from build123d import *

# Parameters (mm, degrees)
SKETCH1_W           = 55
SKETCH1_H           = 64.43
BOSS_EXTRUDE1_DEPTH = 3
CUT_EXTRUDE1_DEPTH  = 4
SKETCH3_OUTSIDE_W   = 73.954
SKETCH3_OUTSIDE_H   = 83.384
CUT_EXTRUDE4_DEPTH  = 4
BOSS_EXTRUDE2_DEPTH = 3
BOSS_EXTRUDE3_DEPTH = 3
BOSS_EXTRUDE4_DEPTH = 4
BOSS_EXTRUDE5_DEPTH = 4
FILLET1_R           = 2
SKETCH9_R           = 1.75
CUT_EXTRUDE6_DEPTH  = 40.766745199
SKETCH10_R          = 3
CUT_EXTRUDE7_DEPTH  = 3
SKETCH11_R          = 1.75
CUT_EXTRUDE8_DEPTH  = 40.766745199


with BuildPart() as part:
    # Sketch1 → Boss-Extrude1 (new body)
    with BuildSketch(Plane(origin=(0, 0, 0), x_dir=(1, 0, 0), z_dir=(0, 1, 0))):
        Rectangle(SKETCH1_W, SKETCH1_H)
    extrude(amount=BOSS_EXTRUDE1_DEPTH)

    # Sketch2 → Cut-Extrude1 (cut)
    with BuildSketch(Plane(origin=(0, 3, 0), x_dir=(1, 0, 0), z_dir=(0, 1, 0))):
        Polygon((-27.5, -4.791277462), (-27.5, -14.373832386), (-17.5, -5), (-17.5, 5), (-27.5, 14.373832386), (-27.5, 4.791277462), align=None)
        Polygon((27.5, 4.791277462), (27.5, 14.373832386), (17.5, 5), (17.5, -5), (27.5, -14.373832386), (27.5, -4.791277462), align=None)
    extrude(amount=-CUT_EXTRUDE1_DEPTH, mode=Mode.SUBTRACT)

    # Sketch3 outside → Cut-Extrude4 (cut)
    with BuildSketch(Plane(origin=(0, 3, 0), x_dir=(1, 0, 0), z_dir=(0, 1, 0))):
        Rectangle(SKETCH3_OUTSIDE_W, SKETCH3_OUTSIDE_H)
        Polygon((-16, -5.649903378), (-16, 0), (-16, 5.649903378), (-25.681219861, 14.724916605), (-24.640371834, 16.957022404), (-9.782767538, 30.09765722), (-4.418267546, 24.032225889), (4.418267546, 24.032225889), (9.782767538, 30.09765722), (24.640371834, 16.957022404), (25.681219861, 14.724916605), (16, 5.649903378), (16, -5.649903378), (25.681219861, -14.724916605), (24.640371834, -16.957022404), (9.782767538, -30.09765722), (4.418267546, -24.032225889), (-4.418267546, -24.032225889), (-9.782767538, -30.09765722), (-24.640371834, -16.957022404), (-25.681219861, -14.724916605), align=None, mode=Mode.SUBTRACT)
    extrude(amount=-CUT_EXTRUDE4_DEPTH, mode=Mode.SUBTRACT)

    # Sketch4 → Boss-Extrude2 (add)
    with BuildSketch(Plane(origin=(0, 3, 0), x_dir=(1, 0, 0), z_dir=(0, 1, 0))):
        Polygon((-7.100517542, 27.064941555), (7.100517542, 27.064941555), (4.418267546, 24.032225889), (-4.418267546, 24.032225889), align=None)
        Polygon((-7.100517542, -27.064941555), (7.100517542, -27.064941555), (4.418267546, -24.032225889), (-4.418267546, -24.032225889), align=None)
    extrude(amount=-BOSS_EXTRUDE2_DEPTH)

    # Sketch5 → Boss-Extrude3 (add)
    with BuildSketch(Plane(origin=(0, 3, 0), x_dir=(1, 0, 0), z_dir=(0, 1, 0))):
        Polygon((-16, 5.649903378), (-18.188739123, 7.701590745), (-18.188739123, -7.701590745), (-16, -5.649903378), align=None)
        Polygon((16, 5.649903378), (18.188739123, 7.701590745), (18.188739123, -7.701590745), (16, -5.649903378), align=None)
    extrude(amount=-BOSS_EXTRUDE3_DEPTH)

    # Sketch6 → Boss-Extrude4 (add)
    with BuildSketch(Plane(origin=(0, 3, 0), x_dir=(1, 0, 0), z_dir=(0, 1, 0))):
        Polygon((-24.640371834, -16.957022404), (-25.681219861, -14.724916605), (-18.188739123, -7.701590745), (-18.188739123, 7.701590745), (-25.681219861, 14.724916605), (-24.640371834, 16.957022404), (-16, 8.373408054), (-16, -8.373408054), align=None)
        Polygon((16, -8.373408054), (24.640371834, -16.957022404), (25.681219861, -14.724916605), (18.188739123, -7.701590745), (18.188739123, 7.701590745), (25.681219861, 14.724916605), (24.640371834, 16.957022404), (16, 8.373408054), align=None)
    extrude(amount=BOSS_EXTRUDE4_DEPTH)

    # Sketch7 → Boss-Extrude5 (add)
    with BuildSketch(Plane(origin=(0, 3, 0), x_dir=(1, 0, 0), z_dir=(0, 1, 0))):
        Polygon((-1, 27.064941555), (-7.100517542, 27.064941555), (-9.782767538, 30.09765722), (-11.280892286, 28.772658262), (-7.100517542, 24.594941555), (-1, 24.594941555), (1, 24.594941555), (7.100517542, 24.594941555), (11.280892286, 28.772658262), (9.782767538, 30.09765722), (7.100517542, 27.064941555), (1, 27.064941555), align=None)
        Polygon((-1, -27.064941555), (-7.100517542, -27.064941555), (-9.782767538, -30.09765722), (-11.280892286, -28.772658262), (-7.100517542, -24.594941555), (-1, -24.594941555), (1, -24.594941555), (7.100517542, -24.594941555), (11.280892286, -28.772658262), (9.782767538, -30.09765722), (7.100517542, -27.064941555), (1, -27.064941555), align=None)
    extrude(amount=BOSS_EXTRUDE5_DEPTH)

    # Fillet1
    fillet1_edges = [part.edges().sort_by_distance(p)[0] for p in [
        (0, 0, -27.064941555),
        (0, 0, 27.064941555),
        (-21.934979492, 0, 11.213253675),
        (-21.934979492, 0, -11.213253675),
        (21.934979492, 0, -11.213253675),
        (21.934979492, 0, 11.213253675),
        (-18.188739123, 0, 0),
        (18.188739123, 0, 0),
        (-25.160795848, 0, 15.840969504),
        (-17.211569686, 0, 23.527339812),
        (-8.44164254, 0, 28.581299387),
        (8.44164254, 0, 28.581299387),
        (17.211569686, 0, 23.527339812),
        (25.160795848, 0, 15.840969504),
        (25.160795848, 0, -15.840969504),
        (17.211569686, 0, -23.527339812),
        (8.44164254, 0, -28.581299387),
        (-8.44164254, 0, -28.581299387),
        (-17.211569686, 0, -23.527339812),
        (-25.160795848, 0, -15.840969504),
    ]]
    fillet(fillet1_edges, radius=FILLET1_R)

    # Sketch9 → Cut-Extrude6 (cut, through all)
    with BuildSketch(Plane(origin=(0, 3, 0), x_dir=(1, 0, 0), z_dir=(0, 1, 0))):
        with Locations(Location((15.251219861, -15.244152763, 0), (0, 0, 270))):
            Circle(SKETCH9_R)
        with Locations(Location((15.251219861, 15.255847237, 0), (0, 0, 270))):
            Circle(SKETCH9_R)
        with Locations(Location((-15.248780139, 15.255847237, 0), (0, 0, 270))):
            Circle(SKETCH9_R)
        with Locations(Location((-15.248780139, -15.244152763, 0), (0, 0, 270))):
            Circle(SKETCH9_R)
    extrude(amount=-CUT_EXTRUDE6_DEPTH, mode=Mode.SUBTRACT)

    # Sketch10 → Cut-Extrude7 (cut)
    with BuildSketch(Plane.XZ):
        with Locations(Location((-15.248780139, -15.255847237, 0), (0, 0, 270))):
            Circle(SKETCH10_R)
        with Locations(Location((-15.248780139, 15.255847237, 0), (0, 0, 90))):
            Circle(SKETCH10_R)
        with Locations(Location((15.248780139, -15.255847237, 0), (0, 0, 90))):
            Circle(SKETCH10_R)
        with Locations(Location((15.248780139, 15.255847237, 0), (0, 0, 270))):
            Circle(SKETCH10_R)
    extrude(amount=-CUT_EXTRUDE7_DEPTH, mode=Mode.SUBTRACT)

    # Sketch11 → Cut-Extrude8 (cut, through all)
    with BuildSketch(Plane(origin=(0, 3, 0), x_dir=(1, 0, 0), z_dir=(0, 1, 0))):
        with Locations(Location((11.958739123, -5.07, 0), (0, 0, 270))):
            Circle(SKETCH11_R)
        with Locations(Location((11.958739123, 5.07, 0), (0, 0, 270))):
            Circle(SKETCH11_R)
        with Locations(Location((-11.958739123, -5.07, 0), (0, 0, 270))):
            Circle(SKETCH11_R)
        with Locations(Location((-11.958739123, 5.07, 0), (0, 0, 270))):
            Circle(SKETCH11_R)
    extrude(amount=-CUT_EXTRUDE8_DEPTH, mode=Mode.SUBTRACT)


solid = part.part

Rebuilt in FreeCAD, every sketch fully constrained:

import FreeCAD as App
import Part
import Sketcher

V = App.Vector
Q = App.Units.Quantity


def edges_at(feature, points):
    """Names of the edges that pass closest to the given points."""
    edges = feature.Shape.Edges
    near = lambda p: min(range(len(edges)), key=lambda i: edges[i].distToShape(Part.Vertex(*p))[0])
    return sorted({f"Edge{near(p) + 1}" for p in points})

doc = App.newDocument("Part")
body = doc.addObject("PartDesign::Body", "Body")

sketch1 = body.newObject("Sketcher::SketchObject", "Sketch")
sketch1.AttachmentSupport = (doc.getObject("XZ_Plane"), [""])
sketch1.MapMode = "FlatFace"
sketch1.addGeometry(Part.LineSegment(V(-27.5, -32.215, 0), V(-27.5, 32.215, 0)), False)
sketch1.addGeometry(Part.LineSegment(V(-27.5, 32.215, 0), V(27.5, 32.215, 0)), False)
sketch1.addGeometry(Part.LineSegment(V(27.5, 32.215, 0), V(27.5, -32.215, 0)), False)
sketch1.addGeometry(Part.LineSegment(V(27.5, -32.215, 0), V(-27.5, -32.215, 0)), False)
sketch1.addConstraint(Sketcher.Constraint("Coincident", 0, 2, 1, 1))
sketch1.addConstraint(Sketcher.Constraint("Coincident", 1, 2, 2, 1))
sketch1.addConstraint(Sketcher.Constraint("Coincident", 2, 2, 3, 1))
sketch1.addConstraint(Sketcher.Constraint("Coincident", 3, 2, 0, 1))
sketch1.addConstraint(Sketcher.Constraint("Vertical", 0))
sketch1.addConstraint(Sketcher.Constraint("Horizontal", 1))
sketch1.addConstraint(Sketcher.Constraint("Vertical", 2))
sketch1.addConstraint(Sketcher.Constraint("Horizontal", 3))
sketch1.addConstraint(Sketcher.Constraint("Symmetric", 0, 2, 2, 2, -1, 1))
sketch1.addConstraint(Sketcher.Constraint("DistanceX", 1, 1, 1, 2, Q("55 mm")))
sketch1.addConstraint(Sketcher.Constraint("DistanceY", 0, 1, 0, 2, Q("64.43 mm")))
pad1 = body.newObject("PartDesign::Pad", "Pad")
pad1.Profile = sketch1
pad1.Length = 3
pad1.Reversed = True

sketch2 = body.newObject("Sketcher::SketchObject", "Sketch001")
sketch2.AttachmentSupport = (doc.getObject("XZ_Plane"), [""])
sketch2.MapMode = "FlatFace"
sketch2.AttachmentOffset = App.Placement(V(0, 0, -3), App.Rotation())
sketch2.addGeometry(Part.LineSegment(V(-27.5, 14.373832, 0), V(-17.5, 5, 0)), False)
sketch2.addGeometry(Part.LineSegment(V(-17.5, 5, 0), V(-17.5, -5, 0)), False)
sketch2.addGeometry(Part.LineSegment(V(-17.5, -5, 0), V(-27.5, -14.373832, 0)), False)
sketch2.addGeometry(Part.LineSegment(V(-27.5, -14.373832, 0), V(-27.5, 14.373832, 0)), False)
sketch2.addGeometry(Part.LineSegment(V(27.5, -14.373832, 0), V(17.5, -5, 0)), False)
sketch2.addGeometry(Part.LineSegment(V(17.5, -5, 0), V(17.5, 5, 0)), False)
sketch2.addGeometry(Part.LineSegment(V(17.5, 5, 0), V(27.5, 14.373832, 0)), False)
sketch2.addGeometry(Part.LineSegment(V(27.5, 14.373832, 0), V(27.5, -14.373832, 0)), False)
sketch2.addConstraint(Sketcher.Constraint("Coincident", 0, 2, 1, 1))
sketch2.addConstraint(Sketcher.Constraint("Coincident", 1, 2, 2, 1))
sketch2.addConstraint(Sketcher.Constraint("Coincident", 2, 2, 3, 1))
sketch2.addConstraint(Sketcher.Constraint("Coincident", 3, 2, 0, 1))
sketch2.addConstraint(Sketcher.Constraint("Coincident", 4, 2, 5, 1))
sketch2.addConstraint(Sketcher.Constraint("Coincident", 5, 2, 6, 1))
sketch2.addConstraint(Sketcher.Constraint("Coincident", 6, 2, 7, 1))
sketch2.addConstraint(Sketcher.Constraint("Coincident", 7, 2, 4, 1))
sketch2.addConstraint(Sketcher.Constraint("Vertical", 1))
sketch2.addConstraint(Sketcher.Constraint("Vertical", 3))
sketch2.addConstraint(Sketcher.Constraint("Vertical", 5))
sketch2.addConstraint(Sketcher.Constraint("Vertical", 7))
sketch2.addConstraint(Sketcher.Constraint("Symmetric", 0, 2, 4, 2, -1, 1))
sketch2.addConstraint(Sketcher.Constraint("Symmetric", 2, 2, 6, 2, -1, 1))
sketch2.addConstraint(Sketcher.Constraint("Parallel", 0, 4))
sketch2.addConstraint(Sketcher.Constraint("Parallel", 2, 6))
sketch2.addConstraint(Sketcher.Constraint("Horizontal", 1, 2, 4, 2))
sketch2.addConstraint(Sketcher.Constraint("Horizontal", 3, 2, 6, 2))
sketch2.addConstraint(Sketcher.Constraint("DistanceY", 1, 2, 1, 1, Q("10 mm")))
sketch2.addConstraint(Sketcher.Constraint("DistanceX", 2, 2, 1, 2, Q("10 mm")))
sketch2.addConstraint(Sketcher.Constraint("DistanceX", 1, 2, 4, 2, Q("35 mm")))
sketch2.addConstraint(Sketcher.Constraint("Distance", 0, Q("13.706522 mm")))
pocket1 = body.newObject("PartDesign::Pocket", "Pocket")
pocket1.Profile = sketch2
pocket1.Length = 4
pocket1.Reversed = True

sketch3 = body.newObject("Sketcher::SketchObject", "Sketch002")
sketch3.AttachmentSupport = (doc.getObject("XZ_Plane"), [""])
sketch3.MapMode = "FlatFace"
sketch3.AttachmentOffset = App.Placement(V(0, 0, -3), App.Rotation())
sketch3.addGeometry(Part.LineSegment(V(-36.977, -41.692, 0), V(-36.977, 41.692, 0)), False)
sketch3.addGeometry(Part.LineSegment(V(-36.977, 41.692, 0), V(36.977, 41.692, 0)), False)
sketch3.addGeometry(Part.LineSegment(V(36.977, 41.692, 0), V(36.977, -41.692, 0)), False)
sketch3.addGeometry(Part.LineSegment(V(36.977, -41.692, 0), V(-36.977, -41.692, 0)), False)
sketch3.addGeometry(Part.LineSegment(V(-25.68122, 14.724917, 0), V(-16, 5.649903, 0)), False)
sketch3.addGeometry(Part.LineSegment(V(-16, 5.649903, 0), V(-16, -5.649903, 0)), False)
sketch3.addGeometry(Part.LineSegment(V(-16, -5.649903, 0), V(-25.68122, -14.724917, 0)), False)
sketch3.addGeometry(Part.LineSegment(V(-25.68122, -14.724917, 0), V(-24.640372, -16.957022, 0)), False)
sketch3.addGeometry(Part.LineSegment(V(-24.640372, -16.957022, 0), V(-9.782768, -30.097657, 0)), False)
sketch3.addGeometry(Part.LineSegment(V(-9.782768, -30.097657, 0), V(-4.418268, -24.032226, 0)), False)
sketch3.addGeometry(Part.LineSegment(V(-4.418268, -24.032226, 0), V(4.418268, -24.032226, 0)), False)
sketch3.addGeometry(Part.LineSegment(V(4.418268, -24.032226, 0), V(9.782768, -30.097657, 0)), False)
sketch3.addGeometry(Part.LineSegment(V(9.782768, -30.097657, 0), V(24.640372, -16.957022, 0)), False)
sketch3.addGeometry(Part.LineSegment(V(24.640372, -16.957022, 0), V(25.68122, -14.724917, 0)), False)
sketch3.addGeometry(Part.LineSegment(V(25.68122, -14.724917, 0), V(16, -5.649903, 0)), False)
sketch3.addGeometry(Part.LineSegment(V(16, -5.649903, 0), V(16, 5.649903, 0)), False)
sketch3.addGeometry(Part.LineSegment(V(16, 5.649903, 0), V(25.68122, 14.724917, 0)), False)
sketch3.addGeometry(Part.LineSegment(V(25.68122, 14.724917, 0), V(24.640372, 16.957022, 0)), False)
sketch3.addGeometry(Part.LineSegment(V(24.640372, 16.957022, 0), V(9.782768, 30.097657, 0)), False)
sketch3.addGeometry(Part.LineSegment(V(9.782768, 30.097657, 0), V(4.418268, 24.032226, 0)), False)
sketch3.addGeometry(Part.LineSegment(V(4.418268, 24.032226, 0), V(-4.418268, 24.032226, 0)), False)
sketch3.addGeometry(Part.LineSegment(V(-4.418268, 24.032226, 0), V(-9.782768, 30.097657, 0)), False)
sketch3.addGeometry(Part.LineSegment(V(-9.782768, 30.097657, 0), V(-24.640372, 16.957022, 0)), False)
sketch3.addGeometry(Part.LineSegment(V(-24.640372, 16.957022, 0), V(-25.68122, 14.724917, 0)), False)
sketch3.addConstraint(Sketcher.Constraint("Coincident", 0, 2, 1, 1))
sketch3.addConstraint(Sketcher.Constraint("Coincident", 1, 2, 2, 1))
sketch3.addConstraint(Sketcher.Constraint("Coincident", 2, 2, 3, 1))
sketch3.addConstraint(Sketcher.Constraint("Coincident", 3, 2, 0, 1))
sketch3.addConstraint(Sketcher.Constraint("Coincident", 4, 2, 5, 1))
sketch3.addConstraint(Sketcher.Constraint("Coincident", 5, 2, 6, 1))
sketch3.addConstraint(Sketcher.Constraint("Coincident", 6, 2, 7, 1))
sketch3.addConstraint(Sketcher.Constraint("Coincident", 7, 2, 8, 1))
sketch3.addConstraint(Sketcher.Constraint("Coincident", 8, 2, 9, 1))
sketch3.addConstraint(Sketcher.Constraint("Coincident", 9, 2, 10, 1))
sketch3.addConstraint(Sketcher.Constraint("Coincident", 10, 2, 11, 1))
sketch3.addConstraint(Sketcher.Constraint("Coincident", 11, 2, 12, 1))
sketch3.addConstraint(Sketcher.Constraint("Coincident", 12, 2, 13, 1))
sketch3.addConstraint(Sketcher.Constraint("Coincident", 13, 2, 14, 1))
sketch3.addConstraint(Sketcher.Constraint("Coincident", 14, 2, 15, 1))
sketch3.addConstraint(Sketcher.Constraint("Coincident", 15, 2, 16, 1))
sketch3.addConstraint(Sketcher.Constraint("Coincident", 16, 2, 17, 1))
sketch3.addConstraint(Sketcher.Constraint("Coincident", 17, 2, 18, 1))
sketch3.addConstraint(Sketcher.Constraint("Coincident", 18, 2, 19, 1))
sketch3.addConstraint(Sketcher.Constraint("Coincident", 19, 2, 20, 1))
sketch3.addConstraint(Sketcher.Constraint("Coincident", 20, 2, 21, 1))
sketch3.addConstraint(Sketcher.Constraint("Coincident", 21, 2, 22, 1))
sketch3.addConstraint(Sketcher.Constraint("Coincident", 22, 2, 23, 1))
sketch3.addConstraint(Sketcher.Constraint("Coincident", 23, 2, 4, 1))
sketch3.addConstraint(Sketcher.Constraint("Vertical", 0))
sketch3.addConstraint(Sketcher.Constraint("Horizontal", 1))
sketch3.addConstraint(Sketcher.Constraint("Vertical", 2))
sketch3.addConstraint(Sketcher.Constraint("Horizontal", 3))
sketch3.addConstraint(Sketcher.Constraint("Vertical", 5))
sketch3.addConstraint(Sketcher.Constraint("Horizontal", 10))
sketch3.addConstraint(Sketcher.Constraint("Vertical", 15))
sketch3.addConstraint(Sketcher.Constraint("Horizontal", 20))
sketch3.addConstraint(Sketcher.Constraint("Symmetric", 0, 2, 2, 2, -1, 1))
sketch3.addConstraint(Sketcher.Constraint("Symmetric", 4, 2, 14, 2, -1, 1))
sketch3.addConstraint(Sketcher.Constraint("Symmetric", 6, 2, 16, 2, -1, 1))
sketch3.addConstraint(Sketcher.Constraint("Symmetric", 7, 2, 17, 2, -1, 1))
sketch3.addConstraint(Sketcher.Constraint("Symmetric", 8, 2, 18, 2, -1, 1))
sketch3.addConstraint(Sketcher.Constraint("Symmetric", 9, 2, 19, 2, -1, 1))
sketch3.addConstraint(Sketcher.Constraint("Symmetric", 11, 2, 21, 2, -1, 1))
sketch3.addConstraint(Sketcher.Constraint("Symmetric", 12, 2, 22, 2, -1, 1))
sketch3.addConstraint(Sketcher.Constraint("Symmetric", 13, 2, 23, 2, -1, 1))
sketch3.addConstraint(Sketcher.Constraint("Symmetric", 8, 2, 11, 2, -2))
sketch3.addConstraint(Sketcher.Constraint("Symmetric", 7, 2, 12, 2, -2))
sketch3.addConstraint(Sketcher.Constraint("Symmetric", 6, 2, 13, 2, -2))
sketch3.addConstraint(Sketcher.Constraint("Perpendicular", 8, 9))
sketch3.addConstraint(Sketcher.Constraint("Perpendicular", 11, 12))
sketch3.addConstraint(Sketcher.Constraint("Parallel", 6, 16))
sketch3.addConstraint(Sketcher.Constraint("Perpendicular", 12, 21))
sketch3.addConstraint(Sketcher.Constraint("Horizontal", 5, 2, 14, 2))
sketch3.addConstraint(Sketcher.Constraint("Angle", 7, Q("-65 deg")))
sketch3.addConstraint(Sketcher.Constraint("DistanceX", 4, 2, -1, 1, Q("16 mm")))
sketch3.addConstraint(Sketcher.Constraint("DistanceX", 1, 1, 1, 2, Q("73.954 mm")))
sketch3.addConstraint(Sketcher.Constraint("DistanceY", 0, 1, 0, 2, Q("83.384 mm")))
sketch3.addConstraint(Sketcher.Constraint("DistanceX", 8, 2, 9, 2, Q("5.3645 mm")))
sketch3.addConstraint(Sketcher.Constraint("DistanceX", 10, 1, 10, 2, Q("8.836535 mm")))
sketch3.addConstraint(Sketcher.Constraint("DistanceY", 5, 2, 5, 1, Q("11.299807 mm")))
sketch3.addConstraint(Sketcher.Constraint("DistanceX", 6, 2, -1, 1, Q("25.68122 mm")))
sketch3.addConstraint(Sketcher.Constraint("DistanceX", 7, 2, -1, 1, Q("24.640372 mm")))
sketch3.addConstraint(Sketcher.Constraint("DistanceY", 6, 2, 4, 2, Q("20.37482 mm")))
sketch3.addConstraint(Sketcher.Constraint("DistanceY", 8, 2, 6, 2, Q("15.372741 mm")))
pocket2 = body.newObject("PartDesign::Pocket", "Pocket001")
pocket2.Profile = sketch3
pocket2.Length = 4
pocket2.Reversed = True

sketch4 = body.newObject("Sketcher::SketchObject", "Sketch003")
sketch4.AttachmentSupport = (doc.getObject("XZ_Plane"), [""])
sketch4.MapMode = "FlatFace"
sketch4.AttachmentOffset = App.Placement(V(0, 0, -3), App.Rotation())
sketch4.addGeometry(Part.LineSegment(V(7.100518, -27.064942, 0), V(-7.100518, -27.064942, 0)), False)
sketch4.addGeometry(Part.LineSegment(V(-7.100518, -27.064942, 0), V(-4.418268, -24.032226, 0)), False)
sketch4.addGeometry(Part.LineSegment(V(-4.418268, -24.032226, 0), V(4.418268, -24.032226, 0)), False)
sketch4.addGeometry(Part.LineSegment(V(4.418268, -24.032226, 0), V(7.100518, -27.064942, 0)), False)
sketch4.addGeometry(Part.LineSegment(V(-7.100518, 27.064942, 0), V(7.100518, 27.064942, 0)), False)
sketch4.addGeometry(Part.LineSegment(V(7.100518, 27.064942, 0), V(4.418268, 24.032226, 0)), False)
sketch4.addGeometry(Part.LineSegment(V(4.418268, 24.032226, 0), V(-4.418268, 24.032226, 0)), False)
sketch4.addGeometry(Part.LineSegment(V(-4.418268, 24.032226, 0), V(-7.100518, 27.064942, 0)), False)
sketch4.addConstraint(Sketcher.Constraint("Coincident", 0, 2, 1, 1))
sketch4.addConstraint(Sketcher.Constraint("Coincident", 1, 2, 2, 1))
sketch4.addConstraint(Sketcher.Constraint("Coincident", 2, 2, 3, 1))
sketch4.addConstraint(Sketcher.Constraint("Coincident", 3, 2, 0, 1))
sketch4.addConstraint(Sketcher.Constraint("Coincident", 4, 2, 5, 1))
sketch4.addConstraint(Sketcher.Constraint("Coincident", 5, 2, 6, 1))
sketch4.addConstraint(Sketcher.Constraint("Coincident", 6, 2, 7, 1))
sketch4.addConstraint(Sketcher.Constraint("Coincident", 7, 2, 4, 1))
sketch4.addConstraint(Sketcher.Constraint("Horizontal", 0))
sketch4.addConstraint(Sketcher.Constraint("Horizontal", 2))
sketch4.addConstraint(Sketcher.Constraint("Horizontal", 4))
sketch4.addConstraint(Sketcher.Constraint("Horizontal", 6))
sketch4.addConstraint(Sketcher.Constraint("Symmetric", 0, 2, 4, 2, -1, 1))
sketch4.addConstraint(Sketcher.Constraint("Symmetric", 1, 2, 5, 2, -1, 1))
sketch4.addConstraint(Sketcher.Constraint("Parallel", 3, 7))
sketch4.addConstraint(Sketcher.Constraint("Vertical", 3, 2, 4, 2))
sketch4.addConstraint(Sketcher.Constraint("Vertical", 2, 2, 5, 2))
sketch4.addConstraint(Sketcher.Constraint("Vertical", 1, 2, 6, 2))
sketch4.addConstraint(Sketcher.Constraint("DistanceX", 0, 2, 0, 1, Q("14.201035 mm")))
sketch4.addConstraint(Sketcher.Constraint("DistanceX", 2, 1, 2, 2, Q("8.836535 mm")))
sketch4.addConstraint(Sketcher.Constraint("DistanceY", 0, 2, -1, 1, Q("27.064942 mm")))
sketch4.addConstraint(Sketcher.Constraint("DistanceY", 2, 2, 5, 2, Q("48.064452 mm")))
pad2 = body.newObject("PartDesign::Pad", "Pad001")
pad2.Profile = sketch4
pad2.Length = 3

sketch5 = body.newObject("Sketcher::SketchObject", "Sketch004")
sketch5.AttachmentSupport = (doc.getObject("XZ_Plane"), [""])
sketch5.MapMode = "FlatFace"
sketch5.AttachmentOffset = App.Placement(V(0, 0, -3), App.Rotation())
sketch5.addGeometry(Part.LineSegment(V(-16, -5.649903, 0), V(-18.188739, -7.701591, 0)), False)
sketch5.addGeometry(Part.LineSegment(V(-18.188739, -7.701591, 0), V(-18.188739, 7.701591, 0)), False)
sketch5.addGeometry(Part.LineSegment(V(-18.188739, 7.701591, 0), V(-16, 5.649903, 0)), False)
sketch5.addGeometry(Part.LineSegment(V(-16, 5.649903, 0), V(-16, -5.649903, 0)), False)
sketch5.addGeometry(Part.LineSegment(V(18.188739, -7.701591, 0), V(16, -5.649903, 0)), False)
sketch5.addGeometry(Part.LineSegment(V(16, -5.649903, 0), V(16, 5.649903, 0)), False)
sketch5.addGeometry(Part.LineSegment(V(16, 5.649903, 0), V(18.188739, 7.701591, 0)), False)
sketch5.addGeometry(Part.LineSegment(V(18.188739, 7.701591, 0), V(18.188739, -7.701591, 0)), False)
sketch5.addConstraint(Sketcher.Constraint("Coincident", 0, 2, 1, 1))
sketch5.addConstraint(Sketcher.Constraint("Coincident", 1, 2, 2, 1))
sketch5.addConstraint(Sketcher.Constraint("Coincident", 2, 2, 3, 1))
sketch5.addConstraint(Sketcher.Constraint("Coincident", 3, 2, 0, 1))
sketch5.addConstraint(Sketcher.Constraint("Coincident", 4, 2, 5, 1))
sketch5.addConstraint(Sketcher.Constraint("Coincident", 5, 2, 6, 1))
sketch5.addConstraint(Sketcher.Constraint("Coincident", 6, 2, 7, 1))
sketch5.addConstraint(Sketcher.Constraint("Coincident", 7, 2, 4, 1))
sketch5.addConstraint(Sketcher.Constraint("Vertical", 1))
sketch5.addConstraint(Sketcher.Constraint("Vertical", 3))
sketch5.addConstraint(Sketcher.Constraint("Vertical", 5))
sketch5.addConstraint(Sketcher.Constraint("Vertical", 7))
sketch5.addConstraint(Sketcher.Constraint("Symmetric", 2, 2, 4, 2, -1, 1))
sketch5.addConstraint(Sketcher.Constraint("Symmetric", 0, 2, 6, 2, -1, 1))
sketch5.addConstraint(Sketcher.Constraint("Parallel", 2, 4))
sketch5.addConstraint(Sketcher.Constraint("Parallel", 0, 6))
sketch5.addConstraint(Sketcher.Constraint("Horizontal", 3, 2, 4, 2))
sketch5.addConstraint(Sketcher.Constraint("Horizontal", 1, 2, 6, 2))
sketch5.addConstraint(Sketcher.Constraint("Distance", 0, Q("3 mm")))
sketch5.addConstraint(Sketcher.Constraint("DistanceX", 2, 2, -1, 1, Q("16 mm")))
sketch5.addConstraint(Sketcher.Constraint("DistanceY", 1, 1, 1, 2, Q("15.403181 mm")))
sketch5.addConstraint(Sketcher.Constraint("DistanceY", 3, 2, 3, 1, Q("11.299807 mm")))
pad3 = body.newObject("PartDesign::Pad", "Pad002")
pad3.Profile = sketch5
pad3.Length = 3

sketch6 = body.newObject("Sketcher::SketchObject", "Sketch005")
sketch6.AttachmentSupport = (doc.getObject("XZ_Plane"), [""])
sketch6.MapMode = "FlatFace"
sketch6.AttachmentOffset = App.Placement(V(0, 0, -3), App.Rotation())
sketch6.addGeometry(Part.LineSegment(V(-25.68122, 14.724917, 0), V(-24.640372, 16.957022, 0)), False)
sketch6.addGeometry(Part.LineSegment(V(-24.640372, 16.957022, 0), V(-16, 8.373408, 0)), False)
sketch6.addGeometry(Part.LineSegment(V(-16, 8.373408, 0), V(-16, -8.373408, 0)), False)
sketch6.addGeometry(Part.LineSegment(V(-16, -8.373408, 0), V(-24.640372, -16.957022, 0)), False)
sketch6.addGeometry(Part.LineSegment(V(-24.640372, -16.957022, 0), V(-25.68122, -14.724917, 0)), False)
sketch6.addGeometry(Part.LineSegment(V(-25.68122, -14.724917, 0), V(-18.188739, -7.701591, 0)), False)
sketch6.addGeometry(Part.LineSegment(V(-18.188739, -7.701591, 0), V(-18.188739, 7.701591, 0)), False)
sketch6.addGeometry(Part.LineSegment(V(-18.188739, 7.701591, 0), V(-25.68122, 14.724917, 0)), False)
sketch6.addGeometry(Part.LineSegment(V(16, 8.373408, 0), V(24.640372, 16.957022, 0)), False)
sketch6.addGeometry(Part.LineSegment(V(24.640372, 16.957022, 0), V(25.68122, 14.724917, 0)), False)
sketch6.addGeometry(Part.LineSegment(V(25.68122, 14.724917, 0), V(18.188739, 7.701591, 0)), False)
sketch6.addGeometry(Part.LineSegment(V(18.188739, 7.701591, 0), V(18.188739, -7.701591, 0)), False)
sketch6.addGeometry(Part.LineSegment(V(18.188739, -7.701591, 0), V(25.68122, -14.724917, 0)), False)
sketch6.addGeometry(Part.LineSegment(V(25.68122, -14.724917, 0), V(24.640372, -16.957022, 0)), False)
sketch6.addGeometry(Part.LineSegment(V(24.640372, -16.957022, 0), V(16, -8.373408, 0)), False)
sketch6.addGeometry(Part.LineSegment(V(16, -8.373408, 0), V(16, 8.373408, 0)), False)
sketch6.addConstraint(Sketcher.Constraint("Coincident", 0, 2, 1, 1))
sketch6.addConstraint(Sketcher.Constraint("Coincident", 1, 2, 2, 1))
sketch6.addConstraint(Sketcher.Constraint("Coincident", 2, 2, 3, 1))
sketch6.addConstraint(Sketcher.Constraint("Coincident", 3, 2, 4, 1))
sketch6.addConstraint(Sketcher.Constraint("Coincident", 4, 2, 5, 1))
sketch6.addConstraint(Sketcher.Constraint("Coincident", 5, 2, 6, 1))
sketch6.addConstraint(Sketcher.Constraint("Coincident", 6, 2, 7, 1))
sketch6.addConstraint(Sketcher.Constraint("Coincident", 7, 2, 0, 1))
sketch6.addConstraint(Sketcher.Constraint("Coincident", 8, 2, 9, 1))
sketch6.addConstraint(Sketcher.Constraint("Coincident", 9, 2, 10, 1))
sketch6.addConstraint(Sketcher.Constraint("Coincident", 10, 2, 11, 1))
sketch6.addConstraint(Sketcher.Constraint("Coincident", 11, 2, 12, 1))
sketch6.addConstraint(Sketcher.Constraint("Coincident", 12, 2, 13, 1))
sketch6.addConstraint(Sketcher.Constraint("Coincident", 13, 2, 14, 1))
sketch6.addConstraint(Sketcher.Constraint("Coincident", 14, 2, 15, 1))
sketch6.addConstraint(Sketcher.Constraint("Coincident", 15, 2, 8, 1))
sketch6.addConstraint(Sketcher.Constraint("Vertical", 2))
sketch6.addConstraint(Sketcher.Constraint("Vertical", 6))
sketch6.addConstraint(Sketcher.Constraint("Vertical", 11))
sketch6.addConstraint(Sketcher.Constraint("Vertical", 15))
sketch6.addConstraint(Sketcher.Constraint("Symmetric", 3, 2, 8, 2, -1, 1))
sketch6.addConstraint(Sketcher.Constraint("Symmetric", 4, 2, 9, 2, -1, 1))
sketch6.addConstraint(Sketcher.Constraint("Symmetric", 5, 2, 10, 2, -1, 1))
sketch6.addConstraint(Sketcher.Constraint("Symmetric", 7, 2, 12, 2, -1, 1))
sketch6.addConstraint(Sketcher.Constraint("Symmetric", 0, 2, 13, 2, -1, 1))
sketch6.addConstraint(Sketcher.Constraint("Symmetric", 1, 2, 14, 2, -1, 1))
sketch6.addConstraint(Sketcher.Constraint("Symmetric", 0, 2, 8, 2, -2))
sketch6.addConstraint(Sketcher.Constraint("Symmetric", 7, 2, 9, 2, -2))
sketch6.addConstraint(Sketcher.Constraint("Parallel", 3, 8))
sketch6.addConstraint(Sketcher.Constraint("Parallel", 7, 12))
sketch6.addConstraint(Sketcher.Constraint("Horizontal", 6, 2, 10, 2))
sketch6.addConstraint(Sketcher.Constraint("Horizontal", 2, 2, 14, 2))
sketch6.addConstraint(Sketcher.Constraint("Angle", 0, Q("65 deg")))
sketch6.addConstraint(Sketcher.Constraint("DistanceX", 1, 2, -1, 1, Q("16 mm")))
sketch6.addConstraint(Sketcher.Constraint("DistanceY", 5, 2, 1, 2, Q("16.074999 mm")))
sketch6.addConstraint(Sketcher.Constraint("DistanceY", 6, 1, 6, 2, Q("15.403181 mm")))
sketch6.addConstraint(Sketcher.Constraint("DistanceX", 0, 2, -1, 1, Q("24.640372 mm")))
sketch6.addConstraint(Sketcher.Constraint("DistanceX", 4, 2, -1, 1, Q("25.68122 mm")))
sketch6.addConstraint(Sketcher.Constraint("DistanceX", 5, 2, -1, 1, Q("18.188739 mm")))
sketch6.addConstraint(Sketcher.Constraint("DistanceY", 2, 2, 0, 2, Q("25.33043 mm")))
pad4 = body.newObject("PartDesign::Pad", "Pad003")
pad4.Profile = sketch6
pad4.Length = 4
pad4.Reversed = True

sketch7 = body.newObject("Sketcher::SketchObject", "Sketch006")
sketch7.AttachmentSupport = (doc.getObject("XZ_Plane"), [""])
sketch7.MapMode = "FlatFace"
sketch7.AttachmentOffset = App.Placement(V(0, 0, -3), App.Rotation())
sketch7.addGeometry(Part.LineSegment(V(-7.100518, -27.064942, 0), V(-9.782768, -30.097657, 0)), False)
sketch7.addGeometry(Part.LineSegment(V(-9.782768, -30.097657, 0), V(-11.280892, -28.772658, 0)), False)
sketch7.addGeometry(Part.LineSegment(V(-11.280892, -28.772658, 0), V(-7.100518, -24.594942, 0)), False)
sketch7.addGeometry(Part.LineSegment(V(-7.100518, -24.594942, 0), V(7.100518, -24.594942, 0)), False)
sketch7.addGeometry(Part.LineSegment(V(7.100518, -24.594942, 0), V(11.280892, -28.772658, 0)), False)
sketch7.addGeometry(Part.LineSegment(V(11.280892, -28.772658, 0), V(9.782768, -30.097657, 0)), False)
sketch7.addGeometry(Part.LineSegment(V(9.782768, -30.097657, 0), V(7.100518, -27.064942, 0)), False)
sketch7.addGeometry(Part.LineSegment(V(7.100518, -27.064942, 0), V(-7.100518, -27.064942, 0)), False)
sketch7.addGeometry(Part.LineSegment(V(-7.100518, 27.064942, 0), V(7.100518, 27.064942, 0)), False)
sketch7.addGeometry(Part.LineSegment(V(7.100518, 27.064942, 0), V(9.782768, 30.097657, 0)), False)
sketch7.addGeometry(Part.LineSegment(V(9.782768, 30.097657, 0), V(11.280892, 28.772658, 0)), False)
sketch7.addGeometry(Part.LineSegment(V(11.280892, 28.772658, 0), V(7.100518, 24.594942, 0)), False)
sketch7.addGeometry(Part.LineSegment(V(7.100518, 24.594942, 0), V(-7.100518, 24.594942, 0)), False)
sketch7.addGeometry(Part.LineSegment(V(-7.100518, 24.594942, 0), V(-11.280892, 28.772658, 0)), False)
sketch7.addGeometry(Part.LineSegment(V(-11.280892, 28.772658, 0), V(-9.782768, 30.097657, 0)), False)
sketch7.addGeometry(Part.LineSegment(V(-9.782768, 30.097657, 0), V(-7.100518, 27.064942, 0)), False)
sketch7.addConstraint(Sketcher.Constraint("Coincident", 0, 2, 1, 1))
sketch7.addConstraint(Sketcher.Constraint("Coincident", 1, 2, 2, 1))
sketch7.addConstraint(Sketcher.Constraint("Coincident", 2, 2, 3, 1))
sketch7.addConstraint(Sketcher.Constraint("Coincident", 3, 2, 4, 1))
sketch7.addConstraint(Sketcher.Constraint("Coincident", 4, 2, 5, 1))
sketch7.addConstraint(Sketcher.Constraint("Coincident", 5, 2, 6, 1))
sketch7.addConstraint(Sketcher.Constraint("Coincident", 6, 2, 7, 1))
sketch7.addConstraint(Sketcher.Constraint("Coincident", 7, 2, 0, 1))
sketch7.addConstraint(Sketcher.Constraint("Coincident", 8, 2, 9, 1))
sketch7.addConstraint(Sketcher.Constraint("Coincident", 9, 2, 10, 1))
sketch7.addConstraint(Sketcher.Constraint("Coincident", 10, 2, 11, 1))
sketch7.addConstraint(Sketcher.Constraint("Coincident", 11, 2, 12, 1))
sketch7.addConstraint(Sketcher.Constraint("Coincident", 12, 2, 13, 1))
sketch7.addConstraint(Sketcher.Constraint("Coincident", 13, 2, 14, 1))
sketch7.addConstraint(Sketcher.Constraint("Coincident", 14, 2, 15, 1))
sketch7.addConstraint(Sketcher.Constraint("Coincident", 15, 2, 8, 1))
sketch7.addConstraint(Sketcher.Constraint("Horizontal", 3))
sketch7.addConstraint(Sketcher.Constraint("Horizontal", 7))
sketch7.addConstraint(Sketcher.Constraint("Horizontal", 8))
sketch7.addConstraint(Sketcher.Constraint("Horizontal", 12))
sketch7.addConstraint(Sketcher.Constraint("Symmetric", 7, 2, 8, 2, -1, 1))
sketch7.addConstraint(Sketcher.Constraint("Symmetric", 0, 2, 9, 2, -1, 1))
sketch7.addConstraint(Sketcher.Constraint("Symmetric", 1, 2, 10, 2, -1, 1))
sketch7.addConstraint(Sketcher.Constraint("Symmetric", 2, 2, 11, 2, -1, 1))
sketch7.addConstraint(Sketcher.Constraint("Symmetric", 4, 2, 13, 2, -1, 1))
sketch7.addConstraint(Sketcher.Constraint("Symmetric", 5, 2, 14, 2, -1, 1))
sketch7.addConstraint(Sketcher.Constraint("Symmetric", 1, 2, 4, 2, -2))
sketch7.addConstraint(Sketcher.Constraint("Symmetric", 0, 2, 5, 2, -2))
sketch7.addConstraint(Sketcher.Constraint("Perpendicular", 0, 1))
sketch7.addConstraint(Sketcher.Constraint("Perpendicular", 5, 6))
sketch7.addConstraint(Sketcher.Constraint("Parallel", 4, 13))
sketch7.addConstraint(Sketcher.Constraint("Perpendicular", 14, 15))
sketch7.addConstraint(Sketcher.Constraint("Vertical", 3, 2, 6, 2))
sketch7.addConstraint(Sketcher.Constraint("Vertical", 2, 2, 7, 2))
sketch7.addConstraint(Sketcher.Constraint("Distance", 1, Q("2 mm")))
sketch7.addConstraint(Sketcher.Constraint("DistanceY", 6, 2, 3, 2, Q("2.47 mm")))
sketch7.addConstraint(Sketcher.Constraint("DistanceY", 0, 2, 1, 2, Q("1.324999 mm")))
sketch7.addConstraint(Sketcher.Constraint("DistanceY", 4, 2, 8, 2, Q("55.8376 mm")))
sketch7.addConstraint(Sketcher.Constraint("DistanceX", 3, 1, 3, 2, Q("14.201035 mm")))
sketch7.addConstraint(Sketcher.Constraint("DistanceY", 1, 2, -1, 1, Q("28.772658 mm")))
pad5 = body.newObject("PartDesign::Pad", "Pad004")
pad5.Profile = sketch7
pad5.Length = 4
pad5.Reversed = True
doc.recompute()

fillet = body.newObject("PartDesign::Fillet", "Fillet")
fillet.Base = (pad5, edges_at(pad5, [
    (0, 0, -27.065),
    (0, 0, 27.065),
    (-21.935, 0, 11.213),
    (-21.935, 0, -11.213),
    (21.935, 0, -11.213),
    (21.935, 0, 11.213),
    (-18.189, 0, 0),
    (18.189, 0, 0),
    (-25.161, 0, 15.841),
    (-17.212, 0, 23.527),
    (-8.442, 0, 28.581),
    (8.442, 0, 28.581),
    (17.212, 0, 23.527),
    (25.161, 0, 15.841),
    (25.161, 0, -15.841),
    (17.212, 0, -23.527),
    (8.442, 0, -28.581),
    (-8.442, 0, -28.581),
    (-17.212, 0, -23.527),
    (-25.161, 0, -15.841),
]))
fillet.Radius = 2

sketch8 = body.newObject("Sketcher::SketchObject", "Sketch007")
sketch8.AttachmentSupport = (doc.getObject("XZ_Plane"), [""])
sketch8.MapMode = "FlatFace"
sketch8.AttachmentOffset = App.Placement(V(0, 0, -3), App.Rotation())
sketch8.addGeometry(Part.Circle(V(15.25122, 15.244153, 0), V(0, 0, 1), 1.75), False)
sketch8.addGeometry(Part.Circle(V(15.25122, -15.255847, 0), V(0, 0, 1), 1.75), False)
sketch8.addGeometry(Part.Circle(V(-15.24878, -15.255847, 0), V(0, 0, 1), 1.75), False)
sketch8.addGeometry(Part.Circle(V(-15.24878, 15.244153, 0), V(0, 0, 1), 1.75), False)
sketch8.addConstraint(Sketcher.Constraint("Equal", 0, 1))
sketch8.addConstraint(Sketcher.Constraint("Equal", 1, 2))
sketch8.addConstraint(Sketcher.Constraint("Equal", 2, 3))
sketch8.addConstraint(Sketcher.Constraint("Horizontal", 1, 3, 2, 3))
sketch8.addConstraint(Sketcher.Constraint("Horizontal", 0, 3, 3, 3))
sketch8.addConstraint(Sketcher.Constraint("Vertical", 0, 3, 1, 3))
sketch8.addConstraint(Sketcher.Constraint("Vertical", 2, 3, 3, 3))
sketch8.addConstraint(Sketcher.Constraint("Diameter", 0, Q("3.5 mm")))
sketch8.addConstraint(Sketcher.Constraint("DistanceY", 1, 3, 0, 3, Q("30.5 mm")))
sketch8.addConstraint(Sketcher.Constraint("DistanceX", 2, 3, 1, 3, Q("30.5 mm")))
sketch8.addConstraint(Sketcher.Constraint("DistanceX", -1, 1, 0, 3, Q("15.25122 mm")))
sketch8.addConstraint(Sketcher.Constraint("DistanceY", -1, 1, 0, 3, Q("15.244153 mm")))
pocket3 = body.newObject("PartDesign::Pocket", "Pocket002")
pocket3.Profile = sketch8
pocket3.Type = "ThroughAll"
pocket3.Reversed = True

sketch9 = body.newObject("Sketcher::SketchObject", "Sketch008")
sketch9.AttachmentSupport = (doc.getObject("XZ_Plane"), [""])
sketch9.MapMode = "FlatFace"
sketch9.addGeometry(Part.Circle(V(-15.24878, -15.255847, 0), V(0, 0, 1), 3), False)
sketch9.addGeometry(Part.Circle(V(-15.24878, 15.255847, 0), V(0, 0, 1), 3), False)
sketch9.addGeometry(Part.Circle(V(15.24878, -15.255847, 0), V(0, 0, 1), 3), False)
sketch9.addGeometry(Part.Circle(V(15.24878, 15.255847, 0), V(0, 0, 1), 3), False)
sketch9.addConstraint(Sketcher.Constraint("Equal", 0, 1))
sketch9.addConstraint(Sketcher.Constraint("Equal", 1, 2))
sketch9.addConstraint(Sketcher.Constraint("Equal", 2, 3))
sketch9.addConstraint(Sketcher.Constraint("Symmetric", 1, 3, 2, 3, -1, 1))
sketch9.addConstraint(Sketcher.Constraint("Symmetric", 0, 3, 3, 3, -1, 1))
sketch9.addConstraint(Sketcher.Constraint("Symmetric", 0, 3, 2, 3, -2))
sketch9.addConstraint(Sketcher.Constraint("Diameter", 0, Q("6 mm")))
sketch9.addConstraint(Sketcher.Constraint("DistanceX", 0, 3, -1, 1, Q("15.24878 mm")))
sketch9.addConstraint(Sketcher.Constraint("DistanceY", 0, 3, -1, 1, Q("15.255847 mm")))
pocket4 = body.newObject("PartDesign::Pocket", "Pocket003")
pocket4.Profile = sketch9
pocket4.Length = 3

sketch10 = body.newObject("Sketcher::SketchObject", "Sketch009")
sketch10.AttachmentSupport = (doc.getObject("XZ_Plane"), [""])
sketch10.MapMode = "FlatFace"
sketch10.AttachmentOffset = App.Placement(V(0, 0, -3), App.Rotation())
sketch10.addGeometry(Part.Circle(V(11.958739, 5.07, 0), V(0, 0, 1), 1.75), False)
sketch10.addGeometry(Part.Circle(V(11.958739, -5.07, 0), V(0, 0, 1), 1.75), False)
sketch10.addGeometry(Part.Circle(V(-11.958739, 5.07, 0), V(0, 0, 1), 1.75), False)
sketch10.addGeometry(Part.Circle(V(-11.958739, -5.07, 0), V(0, 0, 1), 1.75), False)
sketch10.addConstraint(Sketcher.Constraint("Equal", 0, 1))
sketch10.addConstraint(Sketcher.Constraint("Equal", 1, 2))
sketch10.addConstraint(Sketcher.Constraint("Equal", 2, 3))
sketch10.addConstraint(Sketcher.Constraint("Symmetric", 1, 3, 2, 3, -1, 1))
sketch10.addConstraint(Sketcher.Constraint("Symmetric", 0, 3, 3, 3, -1, 1))
sketch10.addConstraint(Sketcher.Constraint("Symmetric", 0, 3, 2, 3, -2))
sketch10.addConstraint(Sketcher.Constraint("Diameter", 0, Q("3.5 mm")))
sketch10.addConstraint(Sketcher.Constraint("DistanceY", -1, 1, 0, 3, Q("5.07 mm")))
sketch10.addConstraint(Sketcher.Constraint("DistanceX", -1, 1, 0, 3, Q("11.958739 mm")))
pocket5 = body.newObject("PartDesign::Pocket", "Pocket004")
pocket5.Profile = sketch10
pocket5.Type = "ThroughAll"
pocket5.Reversed = True

doc.recompute()
